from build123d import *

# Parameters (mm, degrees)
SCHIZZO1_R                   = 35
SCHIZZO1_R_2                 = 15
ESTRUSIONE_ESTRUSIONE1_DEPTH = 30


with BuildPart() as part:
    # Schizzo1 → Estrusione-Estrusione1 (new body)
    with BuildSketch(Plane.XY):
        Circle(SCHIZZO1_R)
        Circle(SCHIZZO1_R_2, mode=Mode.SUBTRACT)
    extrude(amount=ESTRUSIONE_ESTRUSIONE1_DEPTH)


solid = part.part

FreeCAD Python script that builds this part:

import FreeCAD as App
import Part
import Sketcher

V = App.Vector
Q = App.Units.Quantity

doc = App.newDocument("Part")
body = doc.addObject("PartDesign::Body", "Body")

sketch1 = doc.addObject("Sketcher::SketchObject", "Sketch")
body.addObject(sketch1)
sketch1.AttachmentSupport = (doc.XY_Plane, [""])
sketch1.MapMode = "FlatFace"
sketch1.addGeometry([
    Part.Circle(V(0, 0, 0), V(0, 0, 1), 35),
    Part.Circle(V(0, 0, 0), V(0, 0, 1), 15),
], False)
sketch1.addConstraint([
    Sketcher.Constraint("Coincident", 0, 3, -1, 1),
    Sketcher.Constraint("Coincident", 1, 3, -1, 1),
    Sketcher.Constraint("Diameter", 0, Q("70 mm")),
    Sketcher.Constraint("Diameter", 1, Q("30 mm")),
])
pad1 = doc.addObject("PartDesign::Pad", "Pad")
body.addObject(pad1)
pad1.Profile = sketch1
pad1.Length = 30

doc.recompute()
